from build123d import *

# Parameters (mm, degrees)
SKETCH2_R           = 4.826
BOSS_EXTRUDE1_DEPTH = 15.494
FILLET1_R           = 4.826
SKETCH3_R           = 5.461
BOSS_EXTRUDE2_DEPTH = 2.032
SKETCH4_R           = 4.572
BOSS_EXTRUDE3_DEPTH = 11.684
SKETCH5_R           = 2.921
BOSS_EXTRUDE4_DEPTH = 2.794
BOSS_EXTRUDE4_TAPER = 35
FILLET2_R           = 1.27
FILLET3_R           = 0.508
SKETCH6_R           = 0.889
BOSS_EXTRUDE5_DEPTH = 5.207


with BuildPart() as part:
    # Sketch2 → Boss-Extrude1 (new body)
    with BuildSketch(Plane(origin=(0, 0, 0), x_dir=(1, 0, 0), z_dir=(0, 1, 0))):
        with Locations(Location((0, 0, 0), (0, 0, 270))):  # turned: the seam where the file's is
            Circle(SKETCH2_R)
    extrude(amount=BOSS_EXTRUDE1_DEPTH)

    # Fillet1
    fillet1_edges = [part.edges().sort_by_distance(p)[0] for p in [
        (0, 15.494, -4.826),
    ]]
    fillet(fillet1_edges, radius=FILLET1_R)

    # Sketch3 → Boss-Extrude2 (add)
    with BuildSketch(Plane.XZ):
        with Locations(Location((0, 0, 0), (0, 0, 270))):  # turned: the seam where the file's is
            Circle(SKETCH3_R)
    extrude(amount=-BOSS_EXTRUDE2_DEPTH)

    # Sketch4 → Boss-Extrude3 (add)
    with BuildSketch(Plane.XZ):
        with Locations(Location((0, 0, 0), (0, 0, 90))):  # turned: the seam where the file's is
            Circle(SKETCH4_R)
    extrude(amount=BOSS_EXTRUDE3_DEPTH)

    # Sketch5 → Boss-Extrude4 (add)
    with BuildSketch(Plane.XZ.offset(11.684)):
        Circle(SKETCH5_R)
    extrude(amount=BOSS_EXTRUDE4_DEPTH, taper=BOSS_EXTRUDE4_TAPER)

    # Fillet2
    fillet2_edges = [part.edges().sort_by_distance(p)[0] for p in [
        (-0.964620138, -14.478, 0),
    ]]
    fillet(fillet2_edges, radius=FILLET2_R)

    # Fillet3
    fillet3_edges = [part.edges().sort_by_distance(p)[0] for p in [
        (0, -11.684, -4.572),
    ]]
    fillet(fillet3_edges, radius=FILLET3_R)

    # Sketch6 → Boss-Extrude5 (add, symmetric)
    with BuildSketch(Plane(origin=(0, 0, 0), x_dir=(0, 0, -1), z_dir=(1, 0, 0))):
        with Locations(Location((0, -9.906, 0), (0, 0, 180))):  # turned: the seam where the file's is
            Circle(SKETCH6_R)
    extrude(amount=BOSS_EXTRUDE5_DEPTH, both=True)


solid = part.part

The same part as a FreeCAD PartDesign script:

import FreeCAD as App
import Part
import Sketcher
Q = App.Units.Quantity


def edges_at(feature, points):
    """Names of the edges that pass closest to the given points."""
    edges = feature.Shape.Edges
    near = lambda p: min(range(len(edges)), key=lambda i: edges[i].distToShape(Part.Vertex(*p))[0])
    return sorted({f"Edge{near(p) + 1}" for p in points})

doc = App.newDocument("Part")
body = doc.addObject("PartDesign::Body", "Body")

# Sketch on XZ plane
sketch1 = doc.addObject("Sketcher::SketchObject", "Sketch")
body.addObject(sketch1)
sketch1.AttachmentSupport = (doc.XZ_Plane, [""])
sketch1.MapMode = "FlatFace"
sketch1.addGeometry(Part.Circle(App.Vector(0, 0, 0), App.Vector(0, 0, 1), 4.826), False)
sketch1.addConstraint(Sketcher.Constraint("Coincident", 0, 3, -1, 1))
sketch1.addConstraint(Sketcher.Constraint("Diameter", 0, Q("0.38 in")))
pad1 = doc.addObject("PartDesign::Pad", "Pad")
body.addObject(pad1)
pad1.Profile = sketch1
pad1.Length = Q("0.61 in")
pad1.Reversed = True
doc.recompute()

fillet = doc.addObject("PartDesign::Fillet", "Fillet")
body.addObject(fillet)
fillet.Base = (pad1, edges_at(pad1, [(0, 15.494, -4.826)]))
fillet.Radius = Q("0.19 in")

# Sketch on XZ plane
sketch2 = doc.addObject("Sketcher::SketchObject", "Sketch001")
body.addObject(sketch2)
sketch2.AttachmentSupport = (doc.XZ_Plane, [""])
sketch2.MapMode = "FlatFace"
sketch2.addGeometry(Part.Circle(App.Vector(0, 0, 0), App.Vector(0, 0, 1), 5.461), False)
sketch2.addConstraint(Sketcher.Constraint("Coincident", 0, 3, -1, 1))
sketch2.addConstraint(Sketcher.Constraint("Diameter", 0, Q("0.43 in")))
pad2 = doc.addObject("PartDesign::Pad", "Pad001")
body.addObject(pad2)
pad2.Profile = sketch2
pad2.Length = Q("0.08 in")
pad2.Reversed = True

# Sketch on XZ plane
sketch3 = doc.addObject("Sketcher::SketchObject", "Sketch002")
body.addObject(sketch3)
sketch3.AttachmentSupport = (doc.XZ_Plane, [""])
sketch3.MapMode = "FlatFace"
sketch3.addGeometry(Part.Circle(App.Vector(0, 0, 0), App.Vector(0, 0, 1), 4.572), False)
sketch3.addConstraint(Sketcher.Constraint("Coincident", 0, 3, -1, 1))
sketch3.addConstraint(Sketcher.Constraint("Diameter", 0, Q("0.36 in")))
pad3 = doc.addObject("PartDesign::Pad", "Pad002")
body.addObject(pad3)
pad3.Profile = sketch3
pad3.Length = Q("0.46 in")

# Sketch on XZ plane
sketch4 = doc.addObject("Sketcher::SketchObject", "Sketch003")
body.addObject(sketch4)
sketch4.AttachmentSupport = (doc.XZ_Plane, [""])
sketch4.MapMode = "FlatFace"
sketch4.AttachmentOffset = App.Placement(App.Vector(0, 0, 0.46 * 25.4), App.Rotation())
sketch4.addGeometry(Part.Circle(App.Vector(0, 0, 0), App.Vector(0, 0, 1), 2.921), False)
sketch4.addConstraint(Sketcher.Constraint("Coincident", 0, 3, -1, 1))
sketch4.addConstraint(Sketcher.Constraint("Diameter", 0, Q("0.23 in")))
pad4 = doc.addObject("PartDesign::Pad", "Pad003")
body.addObject(pad4)
pad4.Profile = sketch4
pad4.Length = Q("0.11 in")
pad4.TaperAngle = -35
doc.recompute()

fillet2 = doc.addObject("PartDesign::Fillet", "Fillet001")
body.addObject(fillet2)
fillet2.Base = (pad4, edges_at(pad4, [(-0.965, -14.478, 0)]))
fillet2.Radius = Q("0.05 in")
doc.recompute()

fillet3 = doc.addObject("PartDesign::Fillet", "Fillet002")
body.addObject(fillet3)
fillet3.Base = (fillet2, edges_at(fillet2, [(0, -11.684, -4.572)]))
fillet3.Radius = Q("0.02 in")

# Sketch on YZ plane
sketch5 = doc.addObject("Sketcher::SketchObject", "Sketch004")
body.addObject(sketch5)
sketch5.AttachmentSupport = (doc.YZ_Plane, [""])
sketch5.MapMode = "FlatFace"
sketch5.addGeometry(Part.Circle(App.Vector(-9.906, 0, 0), App.Vector(0, 0, 1), 0.889), False)
sketch5.addConstraint(Sketcher.Constraint("PointOnObject", 0, 3, -1))
sketch5.addConstraint(Sketcher.Constraint("Diameter", 0, Q("0.07 in")))
sketch5.addConstraint(Sketcher.Constraint("DistanceX", 0, 3, -1, 1, Q("0.39 in")))
pad5 = doc.addObject("PartDesign::Pad", "Pad004")
body.addObject(pad5)
pad5.Profile = sketch5
pad5.Length = Q("0.41 in")
pad5.Midplane = True

doc.recompute()
